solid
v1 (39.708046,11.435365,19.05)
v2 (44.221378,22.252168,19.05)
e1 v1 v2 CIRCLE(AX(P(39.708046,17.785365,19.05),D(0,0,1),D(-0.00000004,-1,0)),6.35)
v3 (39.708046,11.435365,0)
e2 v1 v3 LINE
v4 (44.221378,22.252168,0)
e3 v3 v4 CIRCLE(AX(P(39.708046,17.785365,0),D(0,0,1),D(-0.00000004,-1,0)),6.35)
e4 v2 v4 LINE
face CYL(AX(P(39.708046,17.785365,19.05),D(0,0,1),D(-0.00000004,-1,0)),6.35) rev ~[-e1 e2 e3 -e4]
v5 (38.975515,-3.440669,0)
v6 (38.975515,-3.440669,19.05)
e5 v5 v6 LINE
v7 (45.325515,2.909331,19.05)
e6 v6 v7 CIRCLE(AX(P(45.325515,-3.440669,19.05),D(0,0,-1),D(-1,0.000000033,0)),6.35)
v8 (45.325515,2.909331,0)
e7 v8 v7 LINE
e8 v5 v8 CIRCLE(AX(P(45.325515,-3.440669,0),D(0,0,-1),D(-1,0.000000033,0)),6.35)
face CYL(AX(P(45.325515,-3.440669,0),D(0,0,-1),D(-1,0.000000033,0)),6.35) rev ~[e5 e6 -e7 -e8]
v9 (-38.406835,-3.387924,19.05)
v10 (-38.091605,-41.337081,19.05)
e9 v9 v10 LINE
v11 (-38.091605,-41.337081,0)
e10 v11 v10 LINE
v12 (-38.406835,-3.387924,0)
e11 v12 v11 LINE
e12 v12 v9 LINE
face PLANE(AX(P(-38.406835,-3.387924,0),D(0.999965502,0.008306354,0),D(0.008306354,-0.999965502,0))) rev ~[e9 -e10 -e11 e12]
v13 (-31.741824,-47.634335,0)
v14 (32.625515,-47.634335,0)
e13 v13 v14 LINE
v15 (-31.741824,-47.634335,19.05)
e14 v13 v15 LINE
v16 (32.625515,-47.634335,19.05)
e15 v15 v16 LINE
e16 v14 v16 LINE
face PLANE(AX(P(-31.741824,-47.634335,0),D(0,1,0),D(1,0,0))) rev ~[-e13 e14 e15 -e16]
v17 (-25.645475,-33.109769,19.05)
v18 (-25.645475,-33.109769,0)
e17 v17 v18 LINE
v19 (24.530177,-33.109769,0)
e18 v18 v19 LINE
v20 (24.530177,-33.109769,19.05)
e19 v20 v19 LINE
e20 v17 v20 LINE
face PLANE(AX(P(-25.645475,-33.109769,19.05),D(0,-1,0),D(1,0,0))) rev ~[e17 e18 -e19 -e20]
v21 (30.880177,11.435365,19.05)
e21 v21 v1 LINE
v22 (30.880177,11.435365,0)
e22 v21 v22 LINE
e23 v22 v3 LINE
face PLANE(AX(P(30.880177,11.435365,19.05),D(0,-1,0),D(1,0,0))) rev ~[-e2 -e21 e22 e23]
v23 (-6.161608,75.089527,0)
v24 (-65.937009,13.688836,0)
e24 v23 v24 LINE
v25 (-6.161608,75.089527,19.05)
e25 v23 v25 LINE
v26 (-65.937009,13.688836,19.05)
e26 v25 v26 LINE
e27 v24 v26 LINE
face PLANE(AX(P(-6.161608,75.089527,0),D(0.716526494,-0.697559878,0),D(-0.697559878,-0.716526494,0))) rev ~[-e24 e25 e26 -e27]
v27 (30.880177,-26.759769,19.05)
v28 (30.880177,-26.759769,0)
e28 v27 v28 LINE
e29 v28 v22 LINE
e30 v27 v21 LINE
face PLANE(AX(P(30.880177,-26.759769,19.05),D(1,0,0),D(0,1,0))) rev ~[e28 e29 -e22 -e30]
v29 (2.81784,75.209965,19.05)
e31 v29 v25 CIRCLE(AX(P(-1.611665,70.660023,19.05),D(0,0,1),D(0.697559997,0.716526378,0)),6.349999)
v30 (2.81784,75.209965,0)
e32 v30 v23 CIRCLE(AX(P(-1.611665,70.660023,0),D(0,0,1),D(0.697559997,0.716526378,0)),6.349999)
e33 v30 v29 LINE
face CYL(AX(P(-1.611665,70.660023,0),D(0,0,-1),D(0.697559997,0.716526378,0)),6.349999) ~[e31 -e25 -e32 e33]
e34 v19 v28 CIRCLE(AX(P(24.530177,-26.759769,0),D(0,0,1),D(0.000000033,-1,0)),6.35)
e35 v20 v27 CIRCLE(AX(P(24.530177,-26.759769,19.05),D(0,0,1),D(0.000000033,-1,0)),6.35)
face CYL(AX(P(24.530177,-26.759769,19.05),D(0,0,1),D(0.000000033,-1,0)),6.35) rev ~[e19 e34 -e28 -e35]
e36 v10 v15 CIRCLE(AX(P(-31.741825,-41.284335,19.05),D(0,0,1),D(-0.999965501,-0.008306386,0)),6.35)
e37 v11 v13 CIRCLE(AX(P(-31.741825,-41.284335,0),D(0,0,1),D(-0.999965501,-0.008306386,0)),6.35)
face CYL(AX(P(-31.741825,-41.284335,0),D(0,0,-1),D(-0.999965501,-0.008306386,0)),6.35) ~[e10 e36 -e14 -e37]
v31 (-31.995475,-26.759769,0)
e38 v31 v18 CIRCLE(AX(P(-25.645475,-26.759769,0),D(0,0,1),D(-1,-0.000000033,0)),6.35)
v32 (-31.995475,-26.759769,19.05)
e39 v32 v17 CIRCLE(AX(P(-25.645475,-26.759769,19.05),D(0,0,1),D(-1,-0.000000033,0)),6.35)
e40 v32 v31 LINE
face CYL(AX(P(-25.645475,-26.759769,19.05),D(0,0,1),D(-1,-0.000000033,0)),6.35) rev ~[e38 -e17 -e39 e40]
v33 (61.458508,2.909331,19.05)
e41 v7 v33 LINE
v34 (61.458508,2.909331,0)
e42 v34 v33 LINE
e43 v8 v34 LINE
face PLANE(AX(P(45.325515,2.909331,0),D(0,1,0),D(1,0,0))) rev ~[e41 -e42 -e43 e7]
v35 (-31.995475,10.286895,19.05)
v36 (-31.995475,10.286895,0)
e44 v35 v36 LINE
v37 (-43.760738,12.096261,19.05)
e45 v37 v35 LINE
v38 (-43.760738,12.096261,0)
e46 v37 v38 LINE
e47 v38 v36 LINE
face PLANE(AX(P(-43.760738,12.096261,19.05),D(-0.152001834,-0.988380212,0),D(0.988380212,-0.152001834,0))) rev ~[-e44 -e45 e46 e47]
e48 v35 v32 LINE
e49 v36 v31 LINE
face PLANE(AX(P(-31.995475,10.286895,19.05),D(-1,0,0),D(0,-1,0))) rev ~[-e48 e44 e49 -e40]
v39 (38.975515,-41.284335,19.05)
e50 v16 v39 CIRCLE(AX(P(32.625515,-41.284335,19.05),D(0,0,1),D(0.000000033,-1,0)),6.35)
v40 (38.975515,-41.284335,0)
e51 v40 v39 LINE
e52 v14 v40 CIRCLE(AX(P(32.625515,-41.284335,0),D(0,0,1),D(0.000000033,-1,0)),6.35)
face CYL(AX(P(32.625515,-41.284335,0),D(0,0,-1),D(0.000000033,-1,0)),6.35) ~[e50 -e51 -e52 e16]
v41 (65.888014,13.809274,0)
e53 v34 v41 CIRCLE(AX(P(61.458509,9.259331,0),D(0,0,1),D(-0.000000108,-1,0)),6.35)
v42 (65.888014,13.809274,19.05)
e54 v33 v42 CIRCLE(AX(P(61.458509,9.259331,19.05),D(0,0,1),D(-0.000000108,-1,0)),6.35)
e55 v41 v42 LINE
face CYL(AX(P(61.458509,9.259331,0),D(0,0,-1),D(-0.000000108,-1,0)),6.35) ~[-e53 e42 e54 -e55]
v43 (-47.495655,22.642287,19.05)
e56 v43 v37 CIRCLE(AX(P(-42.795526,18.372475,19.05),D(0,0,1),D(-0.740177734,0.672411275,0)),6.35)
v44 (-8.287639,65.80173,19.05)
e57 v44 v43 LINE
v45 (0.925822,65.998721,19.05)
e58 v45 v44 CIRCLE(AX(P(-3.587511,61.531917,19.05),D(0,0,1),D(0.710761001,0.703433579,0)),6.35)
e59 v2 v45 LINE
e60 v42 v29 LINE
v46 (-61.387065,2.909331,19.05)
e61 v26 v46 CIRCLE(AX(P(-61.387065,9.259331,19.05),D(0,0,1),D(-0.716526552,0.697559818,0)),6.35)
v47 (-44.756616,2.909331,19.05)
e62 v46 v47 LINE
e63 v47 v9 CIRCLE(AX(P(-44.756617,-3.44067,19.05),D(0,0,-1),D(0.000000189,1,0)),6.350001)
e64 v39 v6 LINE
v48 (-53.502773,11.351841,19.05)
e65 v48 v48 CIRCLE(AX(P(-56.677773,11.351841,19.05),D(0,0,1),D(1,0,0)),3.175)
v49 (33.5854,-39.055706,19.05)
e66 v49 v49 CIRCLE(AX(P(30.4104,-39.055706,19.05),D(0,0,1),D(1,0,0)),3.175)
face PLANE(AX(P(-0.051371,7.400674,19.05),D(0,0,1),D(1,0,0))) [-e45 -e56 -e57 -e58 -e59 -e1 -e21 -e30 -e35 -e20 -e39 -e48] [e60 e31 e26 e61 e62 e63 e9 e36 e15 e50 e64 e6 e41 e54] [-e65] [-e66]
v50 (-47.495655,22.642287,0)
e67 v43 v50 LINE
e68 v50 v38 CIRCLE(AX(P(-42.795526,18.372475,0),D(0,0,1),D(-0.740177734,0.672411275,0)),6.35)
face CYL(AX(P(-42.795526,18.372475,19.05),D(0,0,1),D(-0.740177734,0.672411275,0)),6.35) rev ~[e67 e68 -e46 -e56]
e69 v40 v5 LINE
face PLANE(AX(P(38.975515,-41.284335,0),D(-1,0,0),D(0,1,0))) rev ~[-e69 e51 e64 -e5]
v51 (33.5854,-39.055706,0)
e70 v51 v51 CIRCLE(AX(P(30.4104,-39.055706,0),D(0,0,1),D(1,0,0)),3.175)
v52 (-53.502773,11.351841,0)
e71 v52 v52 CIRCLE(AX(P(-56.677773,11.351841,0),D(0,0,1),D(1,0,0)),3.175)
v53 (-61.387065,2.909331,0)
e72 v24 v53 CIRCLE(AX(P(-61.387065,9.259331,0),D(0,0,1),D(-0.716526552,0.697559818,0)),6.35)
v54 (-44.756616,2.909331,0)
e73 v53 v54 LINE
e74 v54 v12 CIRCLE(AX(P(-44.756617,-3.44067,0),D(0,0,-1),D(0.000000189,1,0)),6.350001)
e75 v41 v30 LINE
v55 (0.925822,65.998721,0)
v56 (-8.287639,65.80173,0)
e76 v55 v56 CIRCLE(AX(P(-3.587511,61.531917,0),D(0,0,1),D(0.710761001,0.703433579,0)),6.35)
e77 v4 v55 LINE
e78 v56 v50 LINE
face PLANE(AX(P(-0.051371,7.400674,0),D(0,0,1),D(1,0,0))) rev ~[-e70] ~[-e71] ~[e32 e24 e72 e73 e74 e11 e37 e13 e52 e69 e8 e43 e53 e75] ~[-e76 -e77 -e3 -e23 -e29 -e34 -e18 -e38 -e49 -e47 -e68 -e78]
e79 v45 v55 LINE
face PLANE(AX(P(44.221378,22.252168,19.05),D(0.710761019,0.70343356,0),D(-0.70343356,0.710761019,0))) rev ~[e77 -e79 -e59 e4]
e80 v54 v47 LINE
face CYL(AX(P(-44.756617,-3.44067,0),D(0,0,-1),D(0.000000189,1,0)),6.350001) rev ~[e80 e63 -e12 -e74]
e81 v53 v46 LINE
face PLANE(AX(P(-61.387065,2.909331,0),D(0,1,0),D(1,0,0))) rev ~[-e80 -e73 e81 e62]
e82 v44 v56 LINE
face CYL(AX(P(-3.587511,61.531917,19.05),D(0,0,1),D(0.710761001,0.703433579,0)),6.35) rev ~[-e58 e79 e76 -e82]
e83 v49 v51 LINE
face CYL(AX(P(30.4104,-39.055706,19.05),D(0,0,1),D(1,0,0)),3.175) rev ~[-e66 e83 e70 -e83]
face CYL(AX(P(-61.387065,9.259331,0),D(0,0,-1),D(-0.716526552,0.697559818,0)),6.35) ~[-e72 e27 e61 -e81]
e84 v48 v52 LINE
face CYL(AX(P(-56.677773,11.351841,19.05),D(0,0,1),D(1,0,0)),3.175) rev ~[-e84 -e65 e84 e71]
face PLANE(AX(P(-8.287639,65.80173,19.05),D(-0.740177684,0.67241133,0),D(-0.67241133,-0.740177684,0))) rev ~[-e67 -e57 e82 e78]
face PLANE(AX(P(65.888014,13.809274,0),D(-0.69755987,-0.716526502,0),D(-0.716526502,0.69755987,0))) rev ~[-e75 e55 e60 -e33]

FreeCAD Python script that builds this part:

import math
import FreeCAD as App
import Part
import Sketcher
from FreeCAD import Vector
Q = App.Units.Quantity

doc = App.newDocument("Part")
params = doc.addObject("Spreadsheet::Sheet", "Params")
for row, (alias, value) in enumerate([
    ("sketch1_radius", "0.25 in"),
    ("pad1_length", "0.75 in"),
    ("sketch2_diameter", "0.25 in"),
    ("sketch3_radius", "0.25 in"),
], start=1):
    params.set(f"A{row}", alias)
    params.set(f"B{row}", "=" + value)
    params.setAlias(f"B{row}", alias)

body = doc.addObject("PartDesign::Body", "Body")

sketch1 = doc.addObject("Sketcher::SketchObject", "Sketch")
body.addObject(sketch1)
sketch1.AttachmentSupport = (doc.XY_Plane, [""])
sketch1.MapMode = "FlatFace"
sketch1.addGeometry([
    Part.ArcOfCircle(Part.Circle(Vector(45, -3, 0), Vector(0, 0, 1), 6), math.radians(90), math.radians(180)),
    Part.LineSegment(Vector(45, 3, 0), Vector(61, 3, 0)),
    Part.ArcOfCircle(Part.Circle(Vector(61, 9, 0), Vector(0, 0, 1), 6), math.radians(-90), math.radians(46)),
    Part.LineSegment(Vector(66, 14, 0), Vector(3, 75, 0)),
    Part.ArcOfCircle(Part.Circle(Vector(-2, 71, 0), Vector(0, 0, 1), 6), math.radians(46), math.radians(136)),
    Part.LineSegment(Vector(-6, 75, 0), Vector(-66, 14, 0)),
    Part.ArcOfCircle(Part.Circle(Vector(-61, 9, 0), Vector(0, 0, 1), 6), math.radians(136), math.radians(270)),
    Part.LineSegment(Vector(-61, 3, 0), Vector(-45, 3, 0)),
    Part.ArcOfCircle(Part.Circle(Vector(-45, -3, 0), Vector(0, 0, 1), 6), math.radians(0), math.radians(90)),
    Part.LineSegment(Vector(-38, -3, 0), Vector(-38, -41, 0)),
    Part.ArcOfCircle(Part.Circle(Vector(-32, -41, 0), Vector(0, 0, 1), 6), math.radians(-180), math.radians(-90)),
    Part.LineSegment(Vector(-32, -48, 0), Vector(33, -48, 0)),
    Part.ArcOfCircle(Part.Circle(Vector(33, -41, 0), Vector(0, 0, 1), 6), math.radians(-90), math.radians(0)),
    Part.LineSegment(Vector(39, -41, 0), Vector(39, -3, 0)),
], False)
sketch1.addConstraint([
    Sketcher.Constraint("Tangent", 0, 1, 1, 1),
    Sketcher.Constraint("Tangent", 1, 2, 2, 1),
    Sketcher.Constraint("Tangent", 2, 2, 3, 1),
    Sketcher.Constraint("Tangent", 3, 2, 4, 1),
    Sketcher.Constraint("Tangent", 4, 2, 5, 1),
    Sketcher.Constraint("Tangent", 5, 2, 6, 1),
    Sketcher.Constraint("Tangent", 6, 2, 7, 1),
    Sketcher.Constraint("Tangent", 7, 2, 8, 2),
    Sketcher.Constraint("Tangent", 8, 1, 9, 1),
    Sketcher.Constraint("Tangent", 9, 2, 10, 1),
    Sketcher.Constraint("Tangent", 10, 2, 11, 1),
    Sketcher.Constraint("Tangent", 11, 2, 12, 1),
    Sketcher.Constraint("Tangent", 12, 2, 13, 1),
    Sketcher.Constraint("Tangent", 13, 2, 0, 2),
    Sketcher.Constraint("Horizontal", 1),
    Sketcher.Constraint("Horizontal", 7),
    Sketcher.Constraint("Horizontal", 11),
    Sketcher.Constraint("Vertical", 13),
    Sketcher.Constraint("Equal", 0, 2),
    Sketcher.Constraint("Equal", 2, 4),
    Sketcher.Constraint("Equal", 4, 6),
    Sketcher.Constraint("Equal", 6, 8),
    Sketcher.Constraint("Equal", 8, 10),
    Sketcher.Constraint("Equal", 10, 12),
    Sketcher.Constraint("Perpendicular", 3, 5),
    Sketcher.Constraint("Horizontal", 2, 3, 6, 3),
    Sketcher.Constraint("Radius", 0, Q("0.25 in")),
    Sketcher.Constraint("DistanceX", 7, 1, 7, 2, 16.630449),
    Sketcher.Constraint("DistanceX", 11, 1, 11, 2, 64.367339),
    Sketcher.Constraint("DistanceX", 6, 3, 4, 3, 59.7754),
    Sketcher.Constraint("DistanceX", 0, 1, 2, 2, 20.562499),
    Sketcher.Constraint("Distance", 3, 88.022109),
    Sketcher.Constraint("DistanceY", 13, 1, 13, 2, 37.843666),
    Sketcher.Constraint("DistanceY", 0, 3, -1, 1, 3.440669),
    Sketcher.Constraint("DistanceX", -1, 1, 2, 3, 61.458509),
])
sketch1.setExpression("Constraints[26]", "Params.sketch1_radius")
pad1 = doc.addObject("PartDesign::Pad", "Pad")
body.addObject(pad1)
pad1.Profile = sketch1
pad1.setExpression("Length", "Params.pad1_length")

sketch2 = doc.addObject("Sketcher::SketchObject", "Sketch001")
body.addObject(sketch2)
sketch2.AttachmentSupport = (doc.XY_Plane, [""])
sketch2.MapMode = "FlatFace"
sketch2.AttachmentOffset = App.Placement(Vector(0, 0, 0.75 * 25.4), App.Rotation())
sketch2.addGeometry([
    Part.Circle(Vector(-56.7, 11.4, 0), Vector(0, 0, 1), 3.2),
    Part.Circle(Vector(30.4, -39.1, 0), Vector(0, 0, 1), 3.2),
], False)
sketch2.addConstraint([
    Sketcher.Constraint("Equal", 0, 1),
    Sketcher.Constraint("Diameter", 0, Q("0.25 in")),
    Sketcher.Constraint("DistanceX", -1, 1, 1, 3, 30.4104),
    Sketcher.Constraint("DistanceY", -1, 1, 0, 3, 11.351841),
    Sketcher.Constraint("DistanceX", 0, 3, -1, 1, 56.677773),
    Sketcher.Constraint("DistanceY", 1, 3, -1, 1, 39.055706),
])
sketch2.setExpression("Constraints[1]", "Params.sketch2_diameter")
pocket1 = doc.addObject("PartDesign::Pocket", "Pocket")
body.addObject(pocket1)
pocket1.Profile = sketch2
pocket1.Type = "ThroughAll"

sketch3 = doc.addObject("Sketcher::SketchObject", "Sketch002")
body.addObject(sketch3)
sketch3.AttachmentSupport = (doc.XY_Plane, [""])
sketch3.MapMode = "FlatFace"
sketch3.AttachmentOffset = App.Placement(Vector(0, 0, 0.75 * 25.4), App.Rotation())
sketch3.addGeometry([
    Part.LineSegment(Vector(-8, 66, 0), Vector(-47, 23, 0)),
    Part.ArcOfCircle(Part.Circle(Vector(-43, 18, 0), Vector(0, 0, 1), 6), math.radians(138), math.radians(261)),
    Part.LineSegment(Vector(-44, 12, 0), Vector(-32, 10, 0)),
    Part.LineSegment(Vector(-32, 10, 0), Vector(-32, -27, 0)),
    Part.ArcOfCircle(Part.Circle(Vector(-26, -27, 0), Vector(0, 0, 1), 6), math.radians(-180), math.radians(-90)),
    Part.LineSegment(Vector(-26, -33, 0), Vector(25, -33, 0)),
    Part.ArcOfCircle(Part.Circle(Vector(25, -27, 0), Vector(0, 0, 1), 6), math.radians(-90), math.radians(0)),
    Part.LineSegment(Vector(31, -27, 0), Vector(31, 11, 0)),
    Part.LineSegment(Vector(31, 11, 0), Vector(40, 11, 0)),
    Part.ArcOfCircle(Part.Circle(Vector(40, 18, 0), Vector(0, 0, 1), 6), math.radians(-90), math.radians(45)),
    Part.LineSegment(Vector(44, 22, 0), Vector(1, 66, 0)),
    Part.ArcOfCircle(Part.Circle(Vector(-4, 62, 0), Vector(0, 0, 1), 6), math.radians(45), math.radians(138)),
], False)
sketch3.addConstraint([
    Sketcher.Constraint("Tangent", 0, 2, 1, 1),
    Sketcher.Constraint("Tangent", 1, 2, 2, 1),
    Sketcher.Constraint("Coincident", 2, 2, 3, 1),
    Sketcher.Constraint("Tangent", 3, 2, 4, 1),
    Sketcher.Constraint("Tangent", 4, 2, 5, 1),
    Sketcher.Constraint("Tangent", 5, 2, 6, 1),
    Sketcher.Constraint("Tangent", 6, 2, 7, 1),
    Sketcher.Constraint("Coincident", 7, 2, 8, 1),
    Sketcher.Constraint("Tangent", 8, 2, 9, 1),
    Sketcher.Constraint("Tangent", 9, 2, 10, 1),
    Sketcher.Constraint("Tangent", 10, 2, 11, 1),
    Sketcher.Constraint("Tangent", 11, 2, 0, 1),
    Sketcher.Constraint("Vertical", 3),
    Sketcher.Constraint("Horizontal", 5),
    Sketcher.Constraint("Vertical", 7),
    Sketcher.Constraint("Horizontal", 8),
    Sketcher.Constraint("Equal", 1, 4),
    Sketcher.Constraint("Equal", 4, 6),
    Sketcher.Constraint("Equal", 6, 9),
    Sketcher.Constraint("Equal", 9, 11),
    Sketcher.Constraint("Radius", 1, Q("0.25 in")),
    Sketcher.Constraint("DistanceX", 8, 1, 8, 2, 8.827869),
    Sketcher.Constraint("DistanceX", 0, 2, 9, 3, 87.203701),
    Sketcher.Constraint("DistanceX", 7, 2, 9, 2, 13.341201),
    Sketcher.Constraint("Distance", 0, 58.309571),
    Sketcher.Constraint("Distance", 2, 11.90358),
    Sketcher.Constraint("Distance", 10, 61.548892),
    Sketcher.Constraint("DistanceX", 5, 1, 5, 2, 50.175652),
    Sketcher.Constraint("DistanceY", 3, 2, 3, 1, 37.046664),
    Sketcher.Constraint("DistanceY", 4, 3, -1, 1, 26.759769),
    Sketcher.Constraint("DistanceX", 11, 3, -1, 1, 3.587511),
])
sketch3.setExpression("Constraints[20]", "Params.sketch3_radius")
pocket2 = doc.addObject("PartDesign::Pocket", "Pocket001")
body.addObject(pocket2)
pocket2.Profile = sketch3
pocket2.Type = "ThroughAll"

doc.recompute()
